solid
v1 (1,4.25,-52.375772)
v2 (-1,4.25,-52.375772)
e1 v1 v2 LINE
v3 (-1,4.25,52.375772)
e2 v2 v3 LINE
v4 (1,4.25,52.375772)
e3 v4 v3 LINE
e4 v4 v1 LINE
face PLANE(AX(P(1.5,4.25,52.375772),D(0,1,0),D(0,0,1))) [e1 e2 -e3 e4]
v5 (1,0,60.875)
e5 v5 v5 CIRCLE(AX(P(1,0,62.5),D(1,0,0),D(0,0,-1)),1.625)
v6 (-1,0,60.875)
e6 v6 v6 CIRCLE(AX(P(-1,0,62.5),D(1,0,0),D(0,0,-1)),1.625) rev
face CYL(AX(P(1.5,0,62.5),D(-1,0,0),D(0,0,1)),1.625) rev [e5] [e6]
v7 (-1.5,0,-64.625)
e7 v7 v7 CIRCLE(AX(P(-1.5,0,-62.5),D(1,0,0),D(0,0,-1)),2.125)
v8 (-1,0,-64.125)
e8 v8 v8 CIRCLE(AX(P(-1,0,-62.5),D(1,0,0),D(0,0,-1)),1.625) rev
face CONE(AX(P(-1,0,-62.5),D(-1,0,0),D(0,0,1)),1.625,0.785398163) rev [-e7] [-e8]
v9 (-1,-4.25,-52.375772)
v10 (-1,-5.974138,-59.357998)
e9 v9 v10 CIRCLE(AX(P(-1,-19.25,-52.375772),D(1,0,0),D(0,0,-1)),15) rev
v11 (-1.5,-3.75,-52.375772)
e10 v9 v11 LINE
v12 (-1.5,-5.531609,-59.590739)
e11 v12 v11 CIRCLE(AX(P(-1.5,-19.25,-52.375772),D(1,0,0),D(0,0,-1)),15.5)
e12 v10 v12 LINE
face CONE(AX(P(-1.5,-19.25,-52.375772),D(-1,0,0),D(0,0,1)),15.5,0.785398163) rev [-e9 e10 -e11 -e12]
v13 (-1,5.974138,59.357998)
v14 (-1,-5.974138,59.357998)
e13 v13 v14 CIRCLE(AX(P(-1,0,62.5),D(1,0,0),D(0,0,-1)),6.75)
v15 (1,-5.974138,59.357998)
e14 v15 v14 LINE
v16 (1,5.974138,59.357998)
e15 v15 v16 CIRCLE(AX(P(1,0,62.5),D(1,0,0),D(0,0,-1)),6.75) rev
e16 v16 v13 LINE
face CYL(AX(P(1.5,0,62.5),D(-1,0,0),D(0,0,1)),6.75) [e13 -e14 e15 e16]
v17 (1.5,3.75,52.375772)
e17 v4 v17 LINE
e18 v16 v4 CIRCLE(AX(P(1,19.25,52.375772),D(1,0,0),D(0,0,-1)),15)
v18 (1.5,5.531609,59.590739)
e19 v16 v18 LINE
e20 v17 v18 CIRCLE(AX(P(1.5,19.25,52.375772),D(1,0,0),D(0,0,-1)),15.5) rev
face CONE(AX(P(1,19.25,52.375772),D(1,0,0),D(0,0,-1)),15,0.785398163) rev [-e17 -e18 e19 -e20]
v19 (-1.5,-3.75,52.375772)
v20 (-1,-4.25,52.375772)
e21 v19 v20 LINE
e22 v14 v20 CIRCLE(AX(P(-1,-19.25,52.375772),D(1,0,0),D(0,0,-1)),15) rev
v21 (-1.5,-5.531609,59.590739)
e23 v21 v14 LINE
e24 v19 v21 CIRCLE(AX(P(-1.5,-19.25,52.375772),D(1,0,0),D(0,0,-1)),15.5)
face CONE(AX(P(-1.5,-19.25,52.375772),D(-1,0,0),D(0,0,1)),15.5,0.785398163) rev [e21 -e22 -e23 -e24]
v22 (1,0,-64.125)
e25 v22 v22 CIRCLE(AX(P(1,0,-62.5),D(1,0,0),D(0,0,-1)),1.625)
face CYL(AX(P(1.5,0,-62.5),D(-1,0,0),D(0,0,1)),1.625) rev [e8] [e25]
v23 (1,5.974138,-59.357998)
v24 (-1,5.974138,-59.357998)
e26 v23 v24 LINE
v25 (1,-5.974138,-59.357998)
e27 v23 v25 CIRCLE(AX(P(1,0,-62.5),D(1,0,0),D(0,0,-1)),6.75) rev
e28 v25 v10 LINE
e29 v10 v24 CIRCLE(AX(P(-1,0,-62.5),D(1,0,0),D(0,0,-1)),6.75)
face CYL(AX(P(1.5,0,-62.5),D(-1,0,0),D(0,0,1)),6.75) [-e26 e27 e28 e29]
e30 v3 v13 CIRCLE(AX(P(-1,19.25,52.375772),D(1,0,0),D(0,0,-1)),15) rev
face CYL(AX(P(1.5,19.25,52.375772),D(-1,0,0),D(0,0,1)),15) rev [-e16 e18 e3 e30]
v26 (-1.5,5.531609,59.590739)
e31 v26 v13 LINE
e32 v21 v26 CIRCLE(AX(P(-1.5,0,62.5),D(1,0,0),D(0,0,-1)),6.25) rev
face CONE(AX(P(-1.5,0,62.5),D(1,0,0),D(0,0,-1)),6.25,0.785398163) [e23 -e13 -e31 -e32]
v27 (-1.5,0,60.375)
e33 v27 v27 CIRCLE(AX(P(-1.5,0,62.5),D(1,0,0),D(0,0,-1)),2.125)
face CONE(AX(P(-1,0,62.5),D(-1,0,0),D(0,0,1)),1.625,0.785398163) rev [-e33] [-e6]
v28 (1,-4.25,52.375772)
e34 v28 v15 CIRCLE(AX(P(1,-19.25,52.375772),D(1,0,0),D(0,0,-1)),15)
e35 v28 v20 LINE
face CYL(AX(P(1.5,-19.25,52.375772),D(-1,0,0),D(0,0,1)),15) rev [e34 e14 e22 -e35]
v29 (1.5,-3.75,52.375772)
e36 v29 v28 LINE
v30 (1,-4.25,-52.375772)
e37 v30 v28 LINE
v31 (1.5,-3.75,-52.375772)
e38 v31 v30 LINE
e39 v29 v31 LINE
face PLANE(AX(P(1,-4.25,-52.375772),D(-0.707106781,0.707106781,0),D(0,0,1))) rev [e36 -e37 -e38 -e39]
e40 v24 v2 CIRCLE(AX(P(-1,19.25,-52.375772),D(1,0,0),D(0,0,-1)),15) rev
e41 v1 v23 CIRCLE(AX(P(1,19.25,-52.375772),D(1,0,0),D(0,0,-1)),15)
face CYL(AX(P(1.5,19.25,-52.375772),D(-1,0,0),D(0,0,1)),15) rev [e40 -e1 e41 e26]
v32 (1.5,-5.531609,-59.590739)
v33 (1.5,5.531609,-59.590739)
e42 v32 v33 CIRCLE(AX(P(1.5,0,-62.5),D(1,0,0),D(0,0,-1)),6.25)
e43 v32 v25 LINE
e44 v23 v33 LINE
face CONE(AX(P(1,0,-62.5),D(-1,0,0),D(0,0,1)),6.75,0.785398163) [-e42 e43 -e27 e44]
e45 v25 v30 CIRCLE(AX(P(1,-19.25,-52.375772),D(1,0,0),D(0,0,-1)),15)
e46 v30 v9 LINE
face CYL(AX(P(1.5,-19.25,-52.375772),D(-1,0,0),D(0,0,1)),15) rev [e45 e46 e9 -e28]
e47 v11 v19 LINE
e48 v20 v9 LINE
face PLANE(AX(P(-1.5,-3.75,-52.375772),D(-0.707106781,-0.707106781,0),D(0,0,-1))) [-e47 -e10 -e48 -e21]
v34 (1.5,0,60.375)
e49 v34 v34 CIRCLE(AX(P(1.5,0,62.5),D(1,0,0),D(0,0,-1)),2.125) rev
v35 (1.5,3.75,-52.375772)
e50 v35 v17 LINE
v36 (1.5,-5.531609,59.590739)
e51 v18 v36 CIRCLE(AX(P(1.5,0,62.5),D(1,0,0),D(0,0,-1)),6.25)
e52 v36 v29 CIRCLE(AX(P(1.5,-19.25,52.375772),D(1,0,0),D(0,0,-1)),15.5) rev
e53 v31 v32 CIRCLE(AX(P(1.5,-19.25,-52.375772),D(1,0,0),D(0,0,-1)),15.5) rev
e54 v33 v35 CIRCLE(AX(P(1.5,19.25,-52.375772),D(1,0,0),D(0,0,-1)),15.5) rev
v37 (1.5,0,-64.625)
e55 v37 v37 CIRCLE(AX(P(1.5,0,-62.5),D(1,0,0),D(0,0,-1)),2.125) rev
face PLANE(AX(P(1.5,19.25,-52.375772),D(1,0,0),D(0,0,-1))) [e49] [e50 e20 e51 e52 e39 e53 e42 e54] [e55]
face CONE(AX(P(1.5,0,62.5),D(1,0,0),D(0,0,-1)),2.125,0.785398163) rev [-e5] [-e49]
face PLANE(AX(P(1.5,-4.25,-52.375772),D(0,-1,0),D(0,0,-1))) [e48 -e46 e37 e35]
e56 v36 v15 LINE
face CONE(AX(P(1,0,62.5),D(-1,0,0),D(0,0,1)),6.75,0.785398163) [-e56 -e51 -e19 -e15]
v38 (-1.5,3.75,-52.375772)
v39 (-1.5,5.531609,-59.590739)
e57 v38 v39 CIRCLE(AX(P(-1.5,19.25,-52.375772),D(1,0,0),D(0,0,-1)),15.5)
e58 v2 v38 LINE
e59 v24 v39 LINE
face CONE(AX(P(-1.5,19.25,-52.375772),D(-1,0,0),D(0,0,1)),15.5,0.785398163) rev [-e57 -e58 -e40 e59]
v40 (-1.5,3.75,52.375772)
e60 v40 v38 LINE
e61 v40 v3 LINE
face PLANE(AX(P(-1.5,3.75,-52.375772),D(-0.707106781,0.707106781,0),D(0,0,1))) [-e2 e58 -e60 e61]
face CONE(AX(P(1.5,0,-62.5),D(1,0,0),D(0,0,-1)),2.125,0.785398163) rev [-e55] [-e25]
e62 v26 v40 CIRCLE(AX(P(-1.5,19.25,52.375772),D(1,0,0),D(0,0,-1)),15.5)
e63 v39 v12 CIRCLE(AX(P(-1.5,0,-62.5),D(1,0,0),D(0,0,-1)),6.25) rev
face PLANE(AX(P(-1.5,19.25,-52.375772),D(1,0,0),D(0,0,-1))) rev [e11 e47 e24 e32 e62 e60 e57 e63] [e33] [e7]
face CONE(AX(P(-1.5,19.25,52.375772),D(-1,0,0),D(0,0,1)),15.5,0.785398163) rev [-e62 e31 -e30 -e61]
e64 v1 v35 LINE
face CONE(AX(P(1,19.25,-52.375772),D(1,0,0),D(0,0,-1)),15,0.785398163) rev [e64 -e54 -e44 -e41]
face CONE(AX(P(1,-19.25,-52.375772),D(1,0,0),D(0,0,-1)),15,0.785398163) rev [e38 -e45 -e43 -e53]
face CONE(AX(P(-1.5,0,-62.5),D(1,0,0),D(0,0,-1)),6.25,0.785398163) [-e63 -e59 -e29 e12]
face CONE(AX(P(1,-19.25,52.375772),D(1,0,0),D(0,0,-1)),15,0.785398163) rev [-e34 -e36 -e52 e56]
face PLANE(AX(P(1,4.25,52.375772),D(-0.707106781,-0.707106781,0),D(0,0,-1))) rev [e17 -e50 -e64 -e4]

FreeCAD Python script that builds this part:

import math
import FreeCAD as App
import Part
import Sketcher
from FreeCAD import Vector
Q = App.Units.Quantity


def edges_at(feature, points):
    """Names of the edges that pass closest to the given points."""
    edges = feature.Shape.Edges
    near = lambda p: min(range(len(edges)), key=lambda i: edges[i].distToShape(Part.Vertex(*p))[0])
    return sorted({f"Edge{near(p) + 1}" for p in points})

doc = App.newDocument("Part")
params = doc.addObject("Spreadsheet::Sheet", "Params")
for row, (alias, value) in enumerate([
    ("sketch1_radius", "15 mm"),
    ("sketch1_diameter", "3.25 mm"),
    ("sketch1_radius2", "6.75 mm"),
    ("pad1_length", "3 mm"),
    ("chamfer_size", "0.5 mm"),
    ("pad2_length", "3 mm"),
], start=1):
    params.set(f"A{row}", alias)
    params.set(f"B{row}", "=" + value)
    params.setAlias(f"B{row}", alias)

body = doc.addObject("PartDesign::Body", "Body")

sketch1 = body.newObject("Sketcher::SketchObject", "Sketch")
sketch1.AttachmentSupport = (doc.getObject("YZ_Plane"), [""])
sketch1.MapMode = "FlatFace"
sketch1.AttachmentOffset = App.Placement(Vector(0, 0, -1.5), App.Rotation())
sketch1.addGeometry(Part.LineSegment(Vector(-4.2, -52.4, 0), Vector(-4.2, 52.4, 0)), False)
sketch1.addGeometry(Part.ArcOfCircle(Part.Circle(Vector(-19.2, 52.4, 0), Vector(0, 0, 1), 15), math.radians(0), math.radians(28)), False)
sketch1.addGeometry(Part.ArcOfCircle(Part.Circle(Vector(0, 62.5, 0), Vector(0, 0, 1), 6.8), math.radians(-28), math.radians(208)), False)
sketch1.addGeometry(Part.ArcOfCircle(Part.Circle(Vector(19.2, 52.4, 0), Vector(0, 0, 1), 15), math.radians(152), math.radians(180)), False)
sketch1.addGeometry(Part.LineSegment(Vector(4.2, 52.4, 0), Vector(4.2, -52.4, 0)), False)
sketch1.addGeometry(Part.ArcOfCircle(Part.Circle(Vector(19.2, -52.4, 0), Vector(0, 0, 1), 15), math.radians(180), math.radians(208)), False)
sketch1.addGeometry(Part.ArcOfCircle(Part.Circle(Vector(0, -62.5, 0), Vector(0, 0, 1), 6.8), math.radians(152), math.radians(388)), False)
sketch1.addGeometry(Part.ArcOfCircle(Part.Circle(Vector(-19.2, -52.4, 0), Vector(0, 0, 1), 15), math.radians(-28), math.radians(0)), False)
sketch1.addGeometry(Part.Circle(Vector(0, -62.5, 0), Vector(0, 0, 1), 1.6), False)
sketch1.addGeometry(Part.Circle(Vector(0, 62.5, 0), Vector(0, 0, 1), 1.6), False)
sketch1.addConstraint(Sketcher.Constraint("Tangent", 0, 2, 1, 1))
sketch1.addConstraint(Sketcher.Constraint("Tangent", 1, 2, 2, 2))
sketch1.addConstraint(Sketcher.Constraint("Tangent", 2, 1, 3, 1))
sketch1.addConstraint(Sketcher.Constraint("Tangent", 3, 2, 4, 1))
sketch1.addConstraint(Sketcher.Constraint("Tangent", 4, 2, 5, 1))
sketch1.addConstraint(Sketcher.Constraint("Tangent", 5, 2, 6, 2))
sketch1.addConstraint(Sketcher.Constraint("Tangent", 6, 1, 7, 1))
sketch1.addConstraint(Sketcher.Constraint("Tangent", 7, 2, 0, 1))
sketch1.addConstraint(Sketcher.Constraint("Vertical", 0))
sketch1.addConstraint(Sketcher.Constraint("Vertical", 4))
sketch1.addConstraint(Sketcher.Constraint("Coincident", 8, 3, 6, 3))
sketch1.addConstraint(Sketcher.Constraint("Coincident", 9, 3, 2, 3))
sketch1.addConstraint(Sketcher.Constraint("Equal", 1, 3))
sketch1.addConstraint(Sketcher.Constraint("Equal", 3, 5))
sketch1.addConstraint(Sketcher.Constraint("Equal", 2, 6))
sketch1.addConstraint(Sketcher.Constraint("Equal", 5, 7))
sketch1.addConstraint(Sketcher.Constraint("Equal", 8, 9))
sketch1.addConstraint(Sketcher.Constraint("Symmetric", 1, 3, 5, 3, -1, 1))
sketch1.addConstraint(Sketcher.Constraint("Symmetric", 2, 3, 6, 3, -1))
sketch1.addConstraint(Sketcher.Constraint("Radius", 1, Q("15 mm")))
sketch1.addConstraint(Sketcher.Constraint("Diameter", 8, Q("3.25 mm")))
sketch1.addConstraint(Sketcher.Constraint("Radius", 2, Q("6.75 mm")))
sketch1.addConstraint(Sketcher.Constraint("DistanceY", 6, 3, 2, 3, Q("125 mm")))
sketch1.addConstraint(Sketcher.Constraint("DistanceX", 1, 3, 3, 3, Q("38.5 mm")))
sketch1.setExpression("Constraints[19]", "Params.sketch1_radius")
sketch1.setExpression("Constraints[20]", "Params.sketch1_diameter")
sketch1.setExpression("Constraints[21]", "Params.sketch1_radius2")
pad1 = body.newObject("PartDesign::Pad", "Pad")
pad1.Profile = sketch1
pad1.setExpression("Length", "Params.pad1_length")
doc.recompute()

chamfer = body.newObject("PartDesign::Chamfer", "Chamfer")
chamfer.Base = (pad1, edges_at(pad1, [
    (-1.5, -4.25, 0),
    (-1.5, -4.687, -55.972),
    (-1.5, 0, -69.25),
    (-1.5, 4.687, -55.972),
    (1.5, -4.687, -55.972),
    (1.5, -4.25, 0),
    (1.5, -4.687, 55.972),
    (1.5, 0, -60.875),
    (-1.5, 0, -60.875),
    (1.5, 0, 69.25),
    (1.5, 0, 64.125),
    (-1.5, 0, 64.125),
    (1.5, 4.687, 55.972),
    (1.5, 4.25, 0),
    (1.5, 4.687, -55.972),
    (-1.5, 4.25, 0),
    (1.5, 0, -69.25),
    (-1.5, 4.687, 55.972),
    (-1.5, 0, 69.25),
    (-1.5, -4.687, 55.972),
]))
chamfer.setExpression("Size", "Params.chamfer_size")

sketch2 = body.newObject("Sketcher::SketchObject", "Sketch001")
sketch2.AttachmentSupport = (doc.getObject("YZ_Plane"), [""])
sketch2.MapMode = "FlatFace"
sketch2.AttachmentOffset = App.Placement(Vector(0, 0, -1.5), App.Rotation())
sketch2.addGeometry(Part.LineSegment(Vector(1.4, -54.7, 0), Vector(1.4, 55.4, 0)), False)
sketch2.addGeometry(Part.LineSegment(Vector(1.4, 55.4, 0), Vector(-1, 55.4, 0)), False)
sketch2.addGeometry(Part.LineSegment(Vector(-1, 55.4, 0), Vector(-1, -54.7, 0)), False)
sketch2.addGeometry(Part.LineSegment(Vector(-1, -54.7, 0), Vector(1.4, -54.7, 0)), False)
sketch2.addConstraint(Sketcher.Constraint("Coincident", 0, 2, 1, 1))
sketch2.addConstraint(Sketcher.Constraint("Coincident", 1, 2, 2, 1))
sketch2.addConstraint(Sketcher.Constraint("Coincident", 2, 2, 3, 1))
sketch2.addConstraint(Sketcher.Constraint("Coincident", 3, 2, 0, 1))
sketch2.addConstraint(Sketcher.Constraint("Vertical", 0))
sketch2.addConstraint(Sketcher.Constraint("Horizontal", 1))
sketch2.addConstraint(Sketcher.Constraint("Vertical", 2))
sketch2.addConstraint(Sketcher.Constraint("Horizontal", 3))
sketch2.addConstraint(Sketcher.Constraint("DistanceX", 1, 2, 1, 1, Q("2.439576 mm")))
sketch2.addConstraint(Sketcher.Constraint("DistanceY", 0, 1, 0, 2, Q("110.120407 mm")))
sketch2.addConstraint(Sketcher.Constraint("DistanceX", 1, 2, -1, 1, Q("1.028238 mm")))
sketch2.addConstraint(Sketcher.Constraint("DistanceY", -1, 1, 0, 2, Q("55.448843 mm")))
pad2 = body.newObject("PartDesign::Pad", "Pad001")
pad2.Profile = sketch2
pad2.setExpression("Length", "Params.pad2_length")

doc.recompute()
